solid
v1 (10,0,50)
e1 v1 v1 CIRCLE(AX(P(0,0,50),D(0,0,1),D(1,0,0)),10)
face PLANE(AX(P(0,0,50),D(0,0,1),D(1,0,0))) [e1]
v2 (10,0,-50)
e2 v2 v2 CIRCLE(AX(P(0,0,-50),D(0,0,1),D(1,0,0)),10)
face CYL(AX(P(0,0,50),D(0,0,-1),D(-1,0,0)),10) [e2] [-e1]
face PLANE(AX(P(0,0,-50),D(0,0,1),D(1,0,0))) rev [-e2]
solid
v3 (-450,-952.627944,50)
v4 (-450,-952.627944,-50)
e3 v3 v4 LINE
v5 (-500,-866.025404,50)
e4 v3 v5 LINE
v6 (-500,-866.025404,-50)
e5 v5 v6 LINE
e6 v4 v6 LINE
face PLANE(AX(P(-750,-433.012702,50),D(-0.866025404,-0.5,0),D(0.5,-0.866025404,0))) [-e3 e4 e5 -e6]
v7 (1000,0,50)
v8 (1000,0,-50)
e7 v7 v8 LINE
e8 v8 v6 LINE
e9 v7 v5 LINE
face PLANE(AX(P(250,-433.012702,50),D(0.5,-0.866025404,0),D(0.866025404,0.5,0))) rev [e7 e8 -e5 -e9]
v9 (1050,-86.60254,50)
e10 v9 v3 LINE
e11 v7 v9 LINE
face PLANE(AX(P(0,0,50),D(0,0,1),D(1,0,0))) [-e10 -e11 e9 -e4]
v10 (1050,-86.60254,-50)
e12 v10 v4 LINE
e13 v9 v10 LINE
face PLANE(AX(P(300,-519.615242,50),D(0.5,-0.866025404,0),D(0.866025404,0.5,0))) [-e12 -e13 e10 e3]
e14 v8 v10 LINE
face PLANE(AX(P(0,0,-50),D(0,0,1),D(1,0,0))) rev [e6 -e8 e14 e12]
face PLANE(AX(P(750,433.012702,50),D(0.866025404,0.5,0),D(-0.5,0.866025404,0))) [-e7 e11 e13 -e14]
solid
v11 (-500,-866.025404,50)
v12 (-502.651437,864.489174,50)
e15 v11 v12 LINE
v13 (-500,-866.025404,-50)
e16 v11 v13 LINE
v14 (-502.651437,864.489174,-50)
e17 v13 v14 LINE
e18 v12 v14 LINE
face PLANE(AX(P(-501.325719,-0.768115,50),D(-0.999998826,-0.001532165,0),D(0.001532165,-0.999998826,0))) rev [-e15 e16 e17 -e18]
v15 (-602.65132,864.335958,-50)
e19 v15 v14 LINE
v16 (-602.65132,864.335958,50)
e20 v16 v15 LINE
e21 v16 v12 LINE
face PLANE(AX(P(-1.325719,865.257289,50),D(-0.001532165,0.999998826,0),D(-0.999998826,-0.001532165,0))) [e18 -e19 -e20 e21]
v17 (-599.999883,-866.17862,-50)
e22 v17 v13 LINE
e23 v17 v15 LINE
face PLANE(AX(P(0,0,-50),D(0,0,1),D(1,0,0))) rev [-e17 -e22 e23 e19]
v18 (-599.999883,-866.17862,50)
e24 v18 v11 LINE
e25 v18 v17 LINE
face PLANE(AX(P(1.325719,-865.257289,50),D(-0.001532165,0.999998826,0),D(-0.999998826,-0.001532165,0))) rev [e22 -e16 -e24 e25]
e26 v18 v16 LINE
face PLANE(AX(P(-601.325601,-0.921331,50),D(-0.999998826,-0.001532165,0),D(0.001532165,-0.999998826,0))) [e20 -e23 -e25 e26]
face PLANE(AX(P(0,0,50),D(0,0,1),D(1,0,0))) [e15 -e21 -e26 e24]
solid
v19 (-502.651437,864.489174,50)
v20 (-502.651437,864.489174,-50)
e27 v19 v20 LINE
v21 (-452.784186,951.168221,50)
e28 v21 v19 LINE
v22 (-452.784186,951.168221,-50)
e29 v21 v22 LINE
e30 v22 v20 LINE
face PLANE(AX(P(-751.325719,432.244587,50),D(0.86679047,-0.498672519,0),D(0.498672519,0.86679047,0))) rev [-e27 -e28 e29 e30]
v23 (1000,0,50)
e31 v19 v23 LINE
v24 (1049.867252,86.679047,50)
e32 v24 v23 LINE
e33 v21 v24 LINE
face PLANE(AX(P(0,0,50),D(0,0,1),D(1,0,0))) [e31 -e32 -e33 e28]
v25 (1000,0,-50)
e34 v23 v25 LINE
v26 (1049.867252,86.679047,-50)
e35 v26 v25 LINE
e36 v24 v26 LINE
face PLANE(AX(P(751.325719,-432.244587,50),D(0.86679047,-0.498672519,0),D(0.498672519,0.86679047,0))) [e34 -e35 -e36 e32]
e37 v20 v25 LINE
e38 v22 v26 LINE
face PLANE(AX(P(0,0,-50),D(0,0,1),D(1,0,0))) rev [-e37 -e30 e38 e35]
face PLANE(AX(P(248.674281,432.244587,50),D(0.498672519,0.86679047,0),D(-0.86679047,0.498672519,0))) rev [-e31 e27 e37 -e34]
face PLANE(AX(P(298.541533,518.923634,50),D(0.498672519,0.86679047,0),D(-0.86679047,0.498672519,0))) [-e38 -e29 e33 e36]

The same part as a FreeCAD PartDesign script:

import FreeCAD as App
import Part
import Sketcher
Q = App.Units.Quantity

doc = App.newDocument("Part")
body = doc.addObject("PartDesign::Body", "Body")
body.AllowCompound = True

# Sketch on XY plane
sketch1 = body.newObject("Sketcher::SketchObject", "Sketch")
sketch1.AttachmentSupport = (doc.getObject("XY_Plane"), [""])
sketch1.MapMode = "FlatFace"
sketch1.addGeometry(Part.LineSegment(App.Vector(-602, 587, 0), App.Vector(-600, -596, 0)), False)
sketch1.addGeometry(Part.LineSegment(App.Vector(-600, -596, 0), App.Vector(-600, -692, 0)), False)
sketch1.addGeometry(Part.LineSegment(App.Vector(-600, -692, 0), App.Vector(-600, -866, 0)), False)
sketch1.addGeometry(Part.LineSegment(App.Vector(-600, -866, 0), App.Vector(-500, -866, 0)), False)
sketch1.addGeometry(Part.LineSegment(App.Vector(-500, -866, 0), App.Vector(-503, 864, 0)), False)
sketch1.addGeometry(Part.LineSegment(App.Vector(-503, 864, 0), App.Vector(-603, 864, 0)), False)
sketch1.addGeometry(Part.LineSegment(App.Vector(-603, 864, 0), App.Vector(-602, 691, 0)), False)
sketch1.addGeometry(Part.LineSegment(App.Vector(-602, 691, 0), App.Vector(-602, 587, 0)), False)
sketch1.addGeometry(Part.LineSegment(App.Vector(804, 228, 0), App.Vector(-453, 951, 0)), False)
sketch1.addGeometry(Part.LineSegment(App.Vector(-453, 951, 0), App.Vector(-503, 864, 0)), False)
sketch1.addGeometry(Part.LineSegment(App.Vector(-503, 864, 0), App.Vector(1000, 0, 0)), False)
sketch1.addGeometry(Part.LineSegment(App.Vector(1000, 0, 0), App.Vector(1050, 87, 0)), False)
sketch1.addGeometry(Part.LineSegment(App.Vector(1050, 87, 0), App.Vector(901, 172, 0)), False)
sketch1.addGeometry(Part.LineSegment(App.Vector(901, 172, 0), App.Vector(804, 228, 0)), False)
sketch1.addGeometry(Part.LineSegment(App.Vector(1000, 0, 0), App.Vector(-275, -736, 0)), False)
sketch1.addGeometry(Part.LineSegment(App.Vector(-275, -736, 0), App.Vector(-500, -866, 0)), False)
sketch1.addGeometry(Part.LineSegment(App.Vector(-500, -866, 0), App.Vector(-450, -953, 0)), False)
sketch1.addGeometry(Part.LineSegment(App.Vector(-450, -953, 0), App.Vector(-300, -866, 0)), False)
sketch1.addGeometry(Part.LineSegment(App.Vector(-300, -866, 0), App.Vector(-205, -811, 0)), False)
sketch1.addGeometry(Part.LineSegment(App.Vector(-205, -811, 0), App.Vector(816, -222, 0)), False)
sketch1.addGeometry(Part.LineSegment(App.Vector(816, -222, 0), App.Vector(900, -173, 0)), False)
sketch1.addGeometry(Part.LineSegment(App.Vector(900, -173, 0), App.Vector(1050, -87, 0)), False)
sketch1.addGeometry(Part.LineSegment(App.Vector(1050, -87, 0), App.Vector(1000, 0, 0)), False)
sketch1.addGeometry(Part.Circle(App.Vector(0, 0, 0), App.Vector(0, 0, 1), 10), False)
sketch1.addConstraint(Sketcher.Constraint("Coincident", 0, 2, 1, 1))
sketch1.addConstraint(Sketcher.Constraint("Coincident", 1, 2, 2, 1))
sketch1.addConstraint(Sketcher.Constraint("Coincident", 2, 2, 3, 1))
sketch1.addConstraint(Sketcher.Constraint("Coincident", 3, 2, 4, 1))
sketch1.addConstraint(Sketcher.Constraint("Coincident", 4, 2, 5, 1))
sketch1.addConstraint(Sketcher.Constraint("Coincident", 5, 2, 6, 1))
sketch1.addConstraint(Sketcher.Constraint("Coincident", 6, 2, 7, 1))
sketch1.addConstraint(Sketcher.Constraint("Coincident", 7, 2, 0, 1))
sketch1.addConstraint(Sketcher.Constraint("Coincident", 8, 2, 9, 1))
sketch1.addConstraint(Sketcher.Constraint("Coincident", 9, 2, 10, 1))
sketch1.addConstraint(Sketcher.Constraint("Coincident", 10, 2, 11, 1))
sketch1.addConstraint(Sketcher.Constraint("Coincident", 11, 2, 12, 1))
sketch1.addConstraint(Sketcher.Constraint("Coincident", 12, 2, 13, 1))
sketch1.addConstraint(Sketcher.Constraint("Coincident", 13, 2, 8, 1))
sketch1.addConstraint(Sketcher.Constraint("Coincident", 14, 2, 15, 1))
sketch1.addConstraint(Sketcher.Constraint("Coincident", 15, 2, 16, 1))
sketch1.addConstraint(Sketcher.Constraint("Coincident", 16, 2, 17, 1))
sketch1.addConstraint(Sketcher.Constraint("Coincident", 17, 2, 18, 1))
sketch1.addConstraint(Sketcher.Constraint("Coincident", 18, 2, 19, 1))
sketch1.addConstraint(Sketcher.Constraint("Coincident", 19, 2, 20, 1))
sketch1.addConstraint(Sketcher.Constraint("Coincident", 20, 2, 21, 1))
sketch1.addConstraint(Sketcher.Constraint("Coincident", 21, 2, 22, 1))
sketch1.addConstraint(Sketcher.Constraint("Coincident", 22, 2, 14, 1))
sketch1.addConstraint(Sketcher.Constraint("Coincident", 23, 3, -1, 1))
sketch1.addConstraint(Sketcher.Constraint("Coincident", 9, 2, 4, 2))
sketch1.addConstraint(Sketcher.Constraint("Coincident", 15, 2, 3, 2))
sketch1.addConstraint(Sketcher.Constraint("Coincident", 22, 2, 10, 2))
sketch1.addConstraint(Sketcher.Constraint("PointOnObject", 10, 2, -1))
sketch1.addConstraint(Sketcher.Constraint("Parallel", 0, 1))
sketch1.addConstraint(Sketcher.Constraint("Parallel", 1, 2))
sketch1.addConstraint(Sketcher.Constraint("Perpendicular", 2, 3))
sketch1.addConstraint(Sketcher.Constraint("Perpendicular", 3, 4))
sketch1.addConstraint(Sketcher.Constraint("Perpendicular", 4, 5))
sketch1.addConstraint(Sketcher.Constraint("Perpendicular", 5, 6))
sketch1.addConstraint(Sketcher.Constraint("Parallel", 6, 7))
sketch1.addConstraint(Sketcher.Constraint("Perpendicular", 8, 9))
sketch1.addConstraint(Sketcher.Constraint("Perpendicular", 9, 10))
sketch1.addConstraint(Sketcher.Constraint("Perpendicular", 10, 11))
sketch1.addConstraint(Sketcher.Constraint("Perpendicular", 11, 12))
sketch1.addConstraint(Sketcher.Constraint("Parallel", 12, 13))
sketch1.addConstraint(Sketcher.Constraint("Parallel", 14, 15))
sketch1.addConstraint(Sketcher.Constraint("Perpendicular", 15, 16))
sketch1.addConstraint(Sketcher.Constraint("Perpendicular", 16, 17))
sketch1.addConstraint(Sketcher.Constraint("Parallel", 17, 18))
sketch1.addConstraint(Sketcher.Constraint("Parallel", 18, 19))
sketch1.addConstraint(Sketcher.Constraint("Parallel", 19, 20))
sketch1.addConstraint(Sketcher.Constraint("Parallel", 20, 21))
sketch1.addConstraint(Sketcher.Constraint("Perpendicular", 21, 22))
sketch1.addConstraint(Sketcher.Constraint("Horizontal", 15, 2, 17, 2))
sketch1.addConstraint(Sketcher.Constraint("Equal", 5, 9))
sketch1.addConstraint(Sketcher.Constraint("Equal", 11, 16))
sketch1.addConstraint(Sketcher.Constraint("Equal", 6, 17))
sketch1.addConstraint(Sketcher.Constraint("Equal", 17, 21))
sketch1.addConstraint(Sketcher.Constraint("Diameter", 23, Q("20 mm")))
sketch1.addConstraint(Sketcher.Constraint("Angle", 14, Q("-150 deg")))
sketch1.addConstraint(Sketcher.Constraint("Distance", 3, Q("100 mm")))
sketch1.addConstraint(Sketcher.Constraint("DistanceX", 3, 2, -1, 1, Q("500 mm")))
sketch1.addConstraint(Sketcher.Constraint("DistanceX", -1, 1, 10, 2, Q("1000 mm")))
sketch1.addConstraint(Sketcher.Constraint("DistanceY", 19, 2, 13, 2, Q("450 mm")))
sketch1.addConstraint(Sketcher.Constraint("DistanceX", 18, 2, -1, 1, Q("204.980998 mm")))
sketch1.addConstraint(Sketcher.Constraint("DistanceY", 11, 2, 7, 2, Q("500.278901 mm")))
sketch1.addConstraint(Sketcher.Constraint("DistanceY", 11, 2, 12, 2, Q("85.7646 mm")))
sketch1.addConstraint(Sketcher.Constraint("DistanceX", 1, 2, 14, 2, Q("325.270898 mm")))
sketch1.addConstraint(Sketcher.Constraint("DistanceY", 16, 2, 1, 2, Q("260.268698 mm")))
sketch1.addConstraint(Sketcher.Constraint("Distance", 0, Q("1183.035069 mm")))
sketch1.addConstraint(Sketcher.Constraint("Distance", 2, Q("173.819578 mm")))
sketch1.addConstraint(Sketcher.Constraint("Distance", 4, Q("1730.516609 mm")))
sketch1.addConstraint(Sketcher.Constraint("Distance", 19, Q("1178.460969 mm")))
pad1 = body.newObject("PartDesign::Pad", "Pad")
pad1.Profile = sketch1
pad1.Length = 100
pad1.Midplane = True

doc.recompute()
